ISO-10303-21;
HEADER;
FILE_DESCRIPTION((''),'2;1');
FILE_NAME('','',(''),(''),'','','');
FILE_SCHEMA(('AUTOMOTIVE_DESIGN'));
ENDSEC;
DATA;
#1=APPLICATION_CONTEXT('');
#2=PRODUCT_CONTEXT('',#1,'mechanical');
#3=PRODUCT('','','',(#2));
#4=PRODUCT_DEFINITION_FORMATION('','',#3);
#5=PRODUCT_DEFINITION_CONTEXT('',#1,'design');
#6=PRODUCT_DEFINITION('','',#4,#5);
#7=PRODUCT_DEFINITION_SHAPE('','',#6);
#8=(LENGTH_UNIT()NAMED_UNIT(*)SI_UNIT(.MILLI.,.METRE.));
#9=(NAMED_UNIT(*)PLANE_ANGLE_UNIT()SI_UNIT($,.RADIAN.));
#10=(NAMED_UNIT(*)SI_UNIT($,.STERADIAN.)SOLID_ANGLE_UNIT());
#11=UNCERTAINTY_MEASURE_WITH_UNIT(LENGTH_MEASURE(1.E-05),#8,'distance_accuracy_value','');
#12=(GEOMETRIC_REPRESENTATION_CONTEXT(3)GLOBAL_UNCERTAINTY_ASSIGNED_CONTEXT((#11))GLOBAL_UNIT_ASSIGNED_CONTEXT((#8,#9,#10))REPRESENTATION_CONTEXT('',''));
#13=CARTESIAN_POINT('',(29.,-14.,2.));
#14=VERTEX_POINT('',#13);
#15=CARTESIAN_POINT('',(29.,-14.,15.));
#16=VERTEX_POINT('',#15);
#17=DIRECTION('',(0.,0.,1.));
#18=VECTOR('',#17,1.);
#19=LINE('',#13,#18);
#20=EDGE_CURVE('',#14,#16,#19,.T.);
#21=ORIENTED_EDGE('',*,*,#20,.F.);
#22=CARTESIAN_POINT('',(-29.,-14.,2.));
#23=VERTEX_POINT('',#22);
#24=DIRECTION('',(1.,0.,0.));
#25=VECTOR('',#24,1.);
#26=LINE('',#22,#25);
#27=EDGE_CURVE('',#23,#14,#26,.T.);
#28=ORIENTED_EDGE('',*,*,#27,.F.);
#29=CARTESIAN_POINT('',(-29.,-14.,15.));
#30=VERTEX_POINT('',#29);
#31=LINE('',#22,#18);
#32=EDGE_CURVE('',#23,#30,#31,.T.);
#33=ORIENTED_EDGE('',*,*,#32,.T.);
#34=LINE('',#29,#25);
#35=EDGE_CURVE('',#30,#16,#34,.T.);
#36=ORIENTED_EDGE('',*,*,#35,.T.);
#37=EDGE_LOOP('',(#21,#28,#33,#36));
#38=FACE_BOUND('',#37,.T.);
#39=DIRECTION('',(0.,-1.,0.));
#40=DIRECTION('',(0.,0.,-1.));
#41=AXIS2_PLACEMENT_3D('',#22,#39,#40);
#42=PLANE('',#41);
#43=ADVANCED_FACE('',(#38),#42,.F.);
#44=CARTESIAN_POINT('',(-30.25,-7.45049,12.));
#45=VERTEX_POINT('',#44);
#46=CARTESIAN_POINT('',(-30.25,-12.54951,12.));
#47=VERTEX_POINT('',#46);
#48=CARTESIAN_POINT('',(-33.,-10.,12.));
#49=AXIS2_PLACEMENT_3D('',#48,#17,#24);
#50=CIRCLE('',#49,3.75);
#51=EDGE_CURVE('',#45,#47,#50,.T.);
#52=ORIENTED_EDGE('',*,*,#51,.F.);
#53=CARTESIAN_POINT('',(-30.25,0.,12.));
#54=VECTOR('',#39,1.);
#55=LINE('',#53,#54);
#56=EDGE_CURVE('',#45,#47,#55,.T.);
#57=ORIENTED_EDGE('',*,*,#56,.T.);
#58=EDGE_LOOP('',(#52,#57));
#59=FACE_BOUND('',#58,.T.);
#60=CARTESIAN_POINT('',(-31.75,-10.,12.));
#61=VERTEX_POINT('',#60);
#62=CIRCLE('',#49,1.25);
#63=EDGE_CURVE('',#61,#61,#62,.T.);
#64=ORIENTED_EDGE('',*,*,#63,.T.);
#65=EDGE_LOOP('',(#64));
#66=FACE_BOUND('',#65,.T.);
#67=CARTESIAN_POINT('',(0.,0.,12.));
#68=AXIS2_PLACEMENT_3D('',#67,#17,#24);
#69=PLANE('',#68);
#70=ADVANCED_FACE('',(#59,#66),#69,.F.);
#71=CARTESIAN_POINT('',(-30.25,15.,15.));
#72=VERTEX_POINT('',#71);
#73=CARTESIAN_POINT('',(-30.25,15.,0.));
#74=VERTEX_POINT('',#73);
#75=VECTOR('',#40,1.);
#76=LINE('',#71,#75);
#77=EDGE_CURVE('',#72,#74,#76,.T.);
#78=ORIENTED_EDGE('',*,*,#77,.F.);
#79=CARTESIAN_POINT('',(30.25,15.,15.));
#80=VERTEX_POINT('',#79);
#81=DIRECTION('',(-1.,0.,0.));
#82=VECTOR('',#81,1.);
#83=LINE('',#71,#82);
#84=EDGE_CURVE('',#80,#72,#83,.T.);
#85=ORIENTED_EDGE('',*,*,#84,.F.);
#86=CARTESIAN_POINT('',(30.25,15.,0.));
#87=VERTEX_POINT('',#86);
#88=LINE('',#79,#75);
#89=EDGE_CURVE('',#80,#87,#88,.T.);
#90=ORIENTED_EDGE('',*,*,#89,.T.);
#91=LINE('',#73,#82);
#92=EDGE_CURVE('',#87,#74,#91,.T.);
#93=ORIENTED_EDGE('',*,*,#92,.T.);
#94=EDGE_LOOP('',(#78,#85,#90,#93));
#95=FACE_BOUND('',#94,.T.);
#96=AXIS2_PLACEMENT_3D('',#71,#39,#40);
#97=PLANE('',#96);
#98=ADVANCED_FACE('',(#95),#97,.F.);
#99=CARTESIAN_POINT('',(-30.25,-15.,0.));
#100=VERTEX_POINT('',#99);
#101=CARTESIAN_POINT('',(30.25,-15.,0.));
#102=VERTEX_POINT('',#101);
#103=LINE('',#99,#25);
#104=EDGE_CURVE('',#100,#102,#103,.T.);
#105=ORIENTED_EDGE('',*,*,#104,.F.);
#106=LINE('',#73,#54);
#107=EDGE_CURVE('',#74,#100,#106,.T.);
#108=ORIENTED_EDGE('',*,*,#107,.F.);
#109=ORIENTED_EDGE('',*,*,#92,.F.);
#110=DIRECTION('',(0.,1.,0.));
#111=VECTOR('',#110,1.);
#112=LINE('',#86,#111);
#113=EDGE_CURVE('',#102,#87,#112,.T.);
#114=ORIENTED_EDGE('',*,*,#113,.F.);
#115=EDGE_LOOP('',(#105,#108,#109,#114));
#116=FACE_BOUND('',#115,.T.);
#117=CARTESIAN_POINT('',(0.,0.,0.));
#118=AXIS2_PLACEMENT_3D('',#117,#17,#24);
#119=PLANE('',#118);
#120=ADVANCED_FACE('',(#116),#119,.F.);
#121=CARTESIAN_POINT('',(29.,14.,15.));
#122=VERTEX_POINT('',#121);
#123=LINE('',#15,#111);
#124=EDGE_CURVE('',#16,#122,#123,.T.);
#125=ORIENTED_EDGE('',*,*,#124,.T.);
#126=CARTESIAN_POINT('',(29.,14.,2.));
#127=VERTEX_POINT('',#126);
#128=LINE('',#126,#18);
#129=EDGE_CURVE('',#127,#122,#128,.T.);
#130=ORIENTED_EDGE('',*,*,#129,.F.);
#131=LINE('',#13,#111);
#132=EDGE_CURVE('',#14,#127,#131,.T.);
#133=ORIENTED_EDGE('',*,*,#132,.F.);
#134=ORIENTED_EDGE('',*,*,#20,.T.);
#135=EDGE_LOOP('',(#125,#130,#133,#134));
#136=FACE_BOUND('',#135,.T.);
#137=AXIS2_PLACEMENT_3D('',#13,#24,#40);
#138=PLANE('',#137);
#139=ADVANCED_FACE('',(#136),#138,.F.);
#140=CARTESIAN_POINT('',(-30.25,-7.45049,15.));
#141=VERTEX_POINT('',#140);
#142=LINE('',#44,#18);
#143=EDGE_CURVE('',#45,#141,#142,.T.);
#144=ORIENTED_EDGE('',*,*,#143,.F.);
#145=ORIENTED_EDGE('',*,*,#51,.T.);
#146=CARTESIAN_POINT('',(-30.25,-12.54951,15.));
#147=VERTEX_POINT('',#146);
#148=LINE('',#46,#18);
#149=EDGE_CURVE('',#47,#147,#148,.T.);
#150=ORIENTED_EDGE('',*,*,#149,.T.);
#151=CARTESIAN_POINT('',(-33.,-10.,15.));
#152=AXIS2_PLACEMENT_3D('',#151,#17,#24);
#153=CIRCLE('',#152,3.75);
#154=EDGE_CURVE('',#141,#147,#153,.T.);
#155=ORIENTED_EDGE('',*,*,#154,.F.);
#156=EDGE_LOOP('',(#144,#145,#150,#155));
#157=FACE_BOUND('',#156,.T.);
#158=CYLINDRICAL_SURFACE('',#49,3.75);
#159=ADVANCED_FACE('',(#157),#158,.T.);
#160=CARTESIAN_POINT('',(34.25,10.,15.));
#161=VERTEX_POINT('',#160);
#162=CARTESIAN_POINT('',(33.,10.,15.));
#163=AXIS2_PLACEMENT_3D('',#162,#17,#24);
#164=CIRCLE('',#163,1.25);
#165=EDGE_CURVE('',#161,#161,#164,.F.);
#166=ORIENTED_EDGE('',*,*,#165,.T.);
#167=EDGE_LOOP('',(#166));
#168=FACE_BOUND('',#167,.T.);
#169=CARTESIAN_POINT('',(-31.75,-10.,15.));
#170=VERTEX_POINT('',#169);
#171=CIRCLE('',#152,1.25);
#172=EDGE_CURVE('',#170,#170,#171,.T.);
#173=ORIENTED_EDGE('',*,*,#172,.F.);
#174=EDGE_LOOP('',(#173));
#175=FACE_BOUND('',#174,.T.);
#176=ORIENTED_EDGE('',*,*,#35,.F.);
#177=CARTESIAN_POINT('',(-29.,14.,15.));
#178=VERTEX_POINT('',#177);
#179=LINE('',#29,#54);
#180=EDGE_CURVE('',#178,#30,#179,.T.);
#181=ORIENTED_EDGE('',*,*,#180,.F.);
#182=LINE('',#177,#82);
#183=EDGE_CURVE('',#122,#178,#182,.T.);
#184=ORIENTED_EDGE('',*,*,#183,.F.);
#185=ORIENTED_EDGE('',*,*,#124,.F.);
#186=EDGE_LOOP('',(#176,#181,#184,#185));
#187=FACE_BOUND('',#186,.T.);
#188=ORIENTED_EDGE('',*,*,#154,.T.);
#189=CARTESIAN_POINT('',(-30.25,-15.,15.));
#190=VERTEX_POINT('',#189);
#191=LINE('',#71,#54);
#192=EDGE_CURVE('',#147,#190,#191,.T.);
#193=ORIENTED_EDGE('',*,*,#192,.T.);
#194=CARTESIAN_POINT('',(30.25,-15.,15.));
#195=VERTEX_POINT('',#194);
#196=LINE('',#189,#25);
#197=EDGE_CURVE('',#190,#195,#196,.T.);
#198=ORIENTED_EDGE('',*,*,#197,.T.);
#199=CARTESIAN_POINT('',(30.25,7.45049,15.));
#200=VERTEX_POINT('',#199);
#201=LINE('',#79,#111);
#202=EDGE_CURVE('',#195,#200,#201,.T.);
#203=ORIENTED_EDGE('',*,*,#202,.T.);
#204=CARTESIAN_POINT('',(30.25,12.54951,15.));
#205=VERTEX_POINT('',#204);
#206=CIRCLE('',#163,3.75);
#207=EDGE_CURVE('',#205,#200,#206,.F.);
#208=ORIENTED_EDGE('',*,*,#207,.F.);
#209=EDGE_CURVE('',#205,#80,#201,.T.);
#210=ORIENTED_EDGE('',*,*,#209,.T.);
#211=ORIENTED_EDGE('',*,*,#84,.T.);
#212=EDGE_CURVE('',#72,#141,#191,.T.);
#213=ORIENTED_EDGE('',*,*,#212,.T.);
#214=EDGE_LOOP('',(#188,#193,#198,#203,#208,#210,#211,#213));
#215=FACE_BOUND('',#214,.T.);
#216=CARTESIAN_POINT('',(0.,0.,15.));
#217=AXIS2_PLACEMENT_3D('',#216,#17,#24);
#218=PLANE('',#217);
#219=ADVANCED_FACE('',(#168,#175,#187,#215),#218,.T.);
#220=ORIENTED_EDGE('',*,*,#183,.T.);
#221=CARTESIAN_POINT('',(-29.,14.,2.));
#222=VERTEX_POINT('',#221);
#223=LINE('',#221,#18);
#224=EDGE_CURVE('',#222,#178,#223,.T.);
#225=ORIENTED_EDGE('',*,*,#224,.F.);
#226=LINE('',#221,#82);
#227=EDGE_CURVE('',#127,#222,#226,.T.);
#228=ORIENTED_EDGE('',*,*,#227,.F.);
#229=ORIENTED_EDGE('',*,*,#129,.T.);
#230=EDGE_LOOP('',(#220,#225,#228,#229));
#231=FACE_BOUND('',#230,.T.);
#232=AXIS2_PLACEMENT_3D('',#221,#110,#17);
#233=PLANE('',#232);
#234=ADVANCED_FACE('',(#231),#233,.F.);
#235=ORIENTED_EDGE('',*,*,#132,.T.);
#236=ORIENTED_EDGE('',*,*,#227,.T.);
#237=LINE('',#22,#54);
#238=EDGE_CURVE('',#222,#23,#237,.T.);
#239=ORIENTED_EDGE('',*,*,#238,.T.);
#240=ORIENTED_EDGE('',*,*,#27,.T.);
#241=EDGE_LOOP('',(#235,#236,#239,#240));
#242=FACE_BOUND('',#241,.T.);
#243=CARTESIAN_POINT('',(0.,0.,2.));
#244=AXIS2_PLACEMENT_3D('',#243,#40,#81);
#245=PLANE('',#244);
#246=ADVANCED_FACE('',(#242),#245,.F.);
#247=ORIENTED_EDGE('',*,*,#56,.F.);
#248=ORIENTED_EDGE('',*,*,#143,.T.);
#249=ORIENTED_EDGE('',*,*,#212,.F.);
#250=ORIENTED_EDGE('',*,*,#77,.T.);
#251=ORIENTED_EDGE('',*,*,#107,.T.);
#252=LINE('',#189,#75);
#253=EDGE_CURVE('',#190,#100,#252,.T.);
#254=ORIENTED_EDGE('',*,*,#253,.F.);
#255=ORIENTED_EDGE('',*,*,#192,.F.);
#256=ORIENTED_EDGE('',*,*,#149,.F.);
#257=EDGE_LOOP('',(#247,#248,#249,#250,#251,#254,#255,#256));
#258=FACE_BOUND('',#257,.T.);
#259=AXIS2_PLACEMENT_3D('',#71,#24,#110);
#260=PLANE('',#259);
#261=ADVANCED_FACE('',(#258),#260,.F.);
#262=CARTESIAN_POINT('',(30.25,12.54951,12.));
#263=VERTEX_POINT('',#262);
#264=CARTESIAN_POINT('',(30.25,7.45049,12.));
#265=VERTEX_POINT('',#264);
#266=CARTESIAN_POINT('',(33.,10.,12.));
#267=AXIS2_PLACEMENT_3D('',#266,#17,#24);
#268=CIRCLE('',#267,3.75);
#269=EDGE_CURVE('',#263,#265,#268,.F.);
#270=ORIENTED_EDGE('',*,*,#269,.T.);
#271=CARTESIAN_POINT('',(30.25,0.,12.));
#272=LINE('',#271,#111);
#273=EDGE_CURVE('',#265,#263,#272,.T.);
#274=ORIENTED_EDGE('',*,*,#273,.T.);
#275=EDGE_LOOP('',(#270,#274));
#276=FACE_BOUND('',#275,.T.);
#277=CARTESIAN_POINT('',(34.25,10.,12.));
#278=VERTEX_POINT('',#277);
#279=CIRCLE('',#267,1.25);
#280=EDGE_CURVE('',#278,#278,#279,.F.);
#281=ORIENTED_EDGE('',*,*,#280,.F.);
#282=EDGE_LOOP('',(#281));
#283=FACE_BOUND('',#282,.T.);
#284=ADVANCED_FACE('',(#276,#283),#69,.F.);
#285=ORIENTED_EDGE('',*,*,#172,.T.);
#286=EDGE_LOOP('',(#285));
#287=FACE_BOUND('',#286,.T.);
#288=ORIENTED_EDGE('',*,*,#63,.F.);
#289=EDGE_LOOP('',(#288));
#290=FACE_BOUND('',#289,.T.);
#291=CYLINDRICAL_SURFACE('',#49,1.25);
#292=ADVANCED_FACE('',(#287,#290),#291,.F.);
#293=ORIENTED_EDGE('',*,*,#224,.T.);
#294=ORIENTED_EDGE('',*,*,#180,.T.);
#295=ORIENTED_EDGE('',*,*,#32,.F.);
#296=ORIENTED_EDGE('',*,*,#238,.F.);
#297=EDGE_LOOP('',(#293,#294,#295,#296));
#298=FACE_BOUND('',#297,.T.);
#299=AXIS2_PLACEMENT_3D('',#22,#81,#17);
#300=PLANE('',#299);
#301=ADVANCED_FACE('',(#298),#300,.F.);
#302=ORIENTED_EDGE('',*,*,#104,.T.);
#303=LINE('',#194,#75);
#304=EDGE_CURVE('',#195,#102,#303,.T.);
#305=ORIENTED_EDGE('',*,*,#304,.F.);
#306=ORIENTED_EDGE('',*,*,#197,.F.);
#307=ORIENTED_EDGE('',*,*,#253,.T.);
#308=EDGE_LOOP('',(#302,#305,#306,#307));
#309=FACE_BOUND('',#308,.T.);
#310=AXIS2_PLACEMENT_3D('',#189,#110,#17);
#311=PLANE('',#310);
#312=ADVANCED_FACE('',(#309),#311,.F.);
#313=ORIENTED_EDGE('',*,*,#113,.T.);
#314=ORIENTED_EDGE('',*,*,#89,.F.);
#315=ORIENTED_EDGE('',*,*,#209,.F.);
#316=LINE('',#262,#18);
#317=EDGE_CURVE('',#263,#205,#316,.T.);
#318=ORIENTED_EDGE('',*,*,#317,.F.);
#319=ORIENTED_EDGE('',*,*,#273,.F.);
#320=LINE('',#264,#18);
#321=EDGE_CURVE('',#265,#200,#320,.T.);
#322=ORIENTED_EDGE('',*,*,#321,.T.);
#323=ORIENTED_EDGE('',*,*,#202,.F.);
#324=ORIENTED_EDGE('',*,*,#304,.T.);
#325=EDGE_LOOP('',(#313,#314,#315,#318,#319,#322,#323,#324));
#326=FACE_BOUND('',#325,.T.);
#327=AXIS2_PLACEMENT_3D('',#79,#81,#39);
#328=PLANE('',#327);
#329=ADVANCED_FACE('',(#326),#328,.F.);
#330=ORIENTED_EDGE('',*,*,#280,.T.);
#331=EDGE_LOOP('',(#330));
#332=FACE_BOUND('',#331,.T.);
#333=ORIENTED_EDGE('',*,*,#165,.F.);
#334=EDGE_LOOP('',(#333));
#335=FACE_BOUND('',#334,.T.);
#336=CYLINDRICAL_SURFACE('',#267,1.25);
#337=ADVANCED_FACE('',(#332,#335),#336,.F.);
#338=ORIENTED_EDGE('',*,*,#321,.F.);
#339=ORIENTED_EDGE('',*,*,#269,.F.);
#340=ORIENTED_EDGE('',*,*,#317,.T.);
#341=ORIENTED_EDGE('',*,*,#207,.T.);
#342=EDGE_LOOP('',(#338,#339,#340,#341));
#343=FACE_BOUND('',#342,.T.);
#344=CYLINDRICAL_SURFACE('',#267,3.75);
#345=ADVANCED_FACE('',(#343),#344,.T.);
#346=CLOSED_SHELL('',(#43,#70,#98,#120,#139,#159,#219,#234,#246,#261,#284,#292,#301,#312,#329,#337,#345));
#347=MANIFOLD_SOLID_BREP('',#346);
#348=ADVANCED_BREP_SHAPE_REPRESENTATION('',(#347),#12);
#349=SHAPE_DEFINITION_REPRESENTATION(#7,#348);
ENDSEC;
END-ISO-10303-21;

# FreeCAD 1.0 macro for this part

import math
import FreeCAD as App
import Part
import Sketcher

doc = App.newDocument("Part")
params = doc.addObject("Spreadsheet::Sheet", "Params")
for row, (alias, value) in enumerate([
    ("sketch1_height", "30 mm"),
    ("sketch1_width", "60.5 mm"),
    ("pad1_length", "15 mm"),
    ("sketch2_diameter", "2.5 mm"),
    ("sketch2_width", "58 mm"),
    ("sketch2_height", "28 mm"),
    ("sketch2_radius", "3.75 mm"),
    ("pocket1_length", "13 mm"),
    ("sketch3_diameter", "2.5 mm"),
    ("sketch3_radius", "3.75 mm"),
    ("pad2_length", "3 mm"),
], start=1):
    params.set(f"A{row}", alias)
    params.set(f"B{row}", "=" + value)
    params.setAlias(f"B{row}", alias)

body = doc.addObject("PartDesign::Body", "Body")

# Sketch on XY plane
sketch1 = body.newObject("Sketcher::SketchObject", "Sketch")
sketch1.AttachmentSupport = (doc.getObject("XY_Plane"), [""])
sketch1.MapMode = "FlatFace"
sketch1.addGeometry([
    Part.LineSegment(App.Vector(-30, 15, 0), App.Vector(-30, -15, 0)),
    Part.LineSegment(App.Vector(-30, -15, 0), App.Vector(30, -15, 0)),
    Part.LineSegment(App.Vector(30, -15, 0), App.Vector(30, 15, 0)),
    Part.LineSegment(App.Vector(30, 15, 0), App.Vector(-30, 15, 0)),
], False)
sketch1.addConstraint([
    Sketcher.Constraint("Coincident", 0, 2, 1, 1),
    Sketcher.Constraint("Coincident", 1, 2, 2, 1),
    Sketcher.Constraint("Coincident", 2, 2, 3, 1),
    Sketcher.Constraint("Coincident", 3, 2, 0, 1),
    Sketcher.Constraint("Vertical", 0),
    Sketcher.Constraint("Horizontal", 1),
    Sketcher.Constraint("Vertical", 2),
    Sketcher.Constraint("Horizontal", 3),
    Sketcher.Constraint("Symmetric", 0, 2, 2, 2, -1, 1),
    Sketcher.Constraint("DistanceY", 0, 2, 0, 1, 30.0),
    Sketcher.Constraint("DistanceX", 1, 1, 1, 2, 60.5),
])
sketch1.setExpression("Constraints[9]", "Params.sketch1_height")
sketch1.setExpression("Constraints[10]", "Params.sketch1_width")
pad1 = body.newObject("PartDesign::Pad", "Pad")
pad1.Profile = sketch1
pad1.setExpression("Length", "Params.pad1_length")

# Sketch on XY plane
sketch2 = body.newObject("Sketcher::SketchObject", "Sketch001")
sketch2.AttachmentSupport = (doc.getObject("XY_Plane"), [""])
sketch2.MapMode = "FlatFace"
sketch2.AttachmentOffset = App.Placement(App.Vector(0, 0, 15), App.Rotation())
sketch2.addGeometry([
    Part.LineSegment(App.Vector(-29, 14, 0), App.Vector(-29, -14, 0)),  # 0
    Part.LineSegment(App.Vector(-29, -14, 0), App.Vector(29, -14, 0)),  # 1
    Part.LineSegment(App.Vector(29, -14, 0), App.Vector(29, 14, 0)),  # 2
    Part.LineSegment(App.Vector(29, 14, 0), App.Vector(-29, 14, 0)),  # 3
    Part.LineSegment(App.Vector(-30.2, -12.5, 0), App.Vector(-30.2, -7.5, 0)),  # 4
    Part.ArcOfCircle(Part.Circle(App.Vector(-33, -10, 0), App.Vector(0, 0, 1), 3.8), math.radians(43), math.radians(317)),  # 5
    Part.Circle(App.Vector(-33, -10, 0), App.Vector(0, 0, 1), 1.2),  # 6
    Part.LineSegment(App.Vector(30.2, 12.5, 0), App.Vector(30.2, 7.5, 0)),  # 7
    Part.ArcOfCircle(Part.Circle(App.Vector(33, 10, 0), App.Vector(0, 0, 1), 3.8), math.radians(-137), math.radians(137)),  # 8
    Part.Circle(App.Vector(33, 10, 0), App.Vector(0, 0, 1), 1.2),  # 9
], False)
sketch2.addConstraint([
    Sketcher.Constraint("Coincident", 0, 2, 1, 1),
    Sketcher.Constraint("Coincident", 1, 2, 2, 1),
    Sketcher.Constraint("Coincident", 2, 2, 3, 1),
    Sketcher.Constraint("Coincident", 3, 2, 0, 1),
    Sketcher.Constraint("Coincident", 4, 1, 5, 2),
    Sketcher.Constraint("Coincident", 5, 1, 4, 2),
    Sketcher.Constraint("Coincident", 7, 1, 8, 2),
    Sketcher.Constraint("Coincident", 8, 1, 7, 2),
    Sketcher.Constraint("Vertical", 0),
    Sketcher.Constraint("Horizontal", 1),
    Sketcher.Constraint("Vertical", 2),
    Sketcher.Constraint("Horizontal", 3),
    Sketcher.Constraint("Vertical", 4),
    Sketcher.Constraint("Vertical", 7),
    Sketcher.Constraint("Coincident", 6, 3, 5, 3),
    Sketcher.Constraint("Coincident", 9, 3, 8, 3),
    Sketcher.Constraint("Equal", 5, 8),
    Sketcher.Constraint("Equal", 6, 9),
    Sketcher.Constraint("Symmetric", 5, 3, 8, 3, -1, 1),
    Sketcher.Constraint("Symmetric", 0, 2, 2, 2, -1, 1),
    Sketcher.Constraint("Equal", 4, 7),
    Sketcher.Constraint("Diameter", 6, 2.5),
    Sketcher.Constraint("DistanceX", 1, 1, 1, 2, 58.0),
    Sketcher.Constraint("DistanceY", 0, 2, 0, 1, 28.0),
    Sketcher.Constraint("Radius", 5, 3.75),
    Sketcher.Constraint("DistanceX", 5, 3, -1, 1, 33.0),
    Sketcher.Constraint("DistanceY", 5, 3, -1, 1, 10.0),
    Sketcher.Constraint("DistanceX", 4, 1, -1, 1, 30.25),
])
sketch2.setExpression("Constraints[21]", "Params.sketch2_diameter")
sketch2.setExpression("Constraints[22]", "Params.sketch2_width")
sketch2.setExpression("Constraints[23]", "Params.sketch2_height")
sketch2.setExpression("Constraints[24]", "Params.sketch2_radius")
pocket1 = body.newObject("PartDesign::Pocket", "Pocket")
pocket1.Profile = sketch2
pocket1.setExpression("Length", "Params.pocket1_length")

# Sketch on XY plane
sketch3 = body.newObject("Sketcher::SketchObject", "Sketch002")
sketch3.AttachmentSupport = (doc.getObject("XY_Plane"), [""])
sketch3.MapMode = "FlatFace"
sketch3.AttachmentOffset = App.Placement(App.Vector(0, 0, 15), App.Rotation())
sketch3.addGeometry([
    Part.LineSegment(App.Vector(-30.2, -12.5, 0), App.Vector(-30.2, -7.5, 0)),  # 0
    Part.ArcOfCircle(Part.Circle(App.Vector(-33, -10, 0), App.Vector(0, 0, 1), 3.8), math.radians(43), math.radians(317)),  # 1
    Part.Circle(App.Vector(-33, -10, 0), App.Vector(0, 0, 1), 1.2),  # 2
    Part.ArcOfCircle(Part.Circle(App.Vector(33, 10, 0), App.Vector(0, 0, 1), 3.8), math.radians(-137), math.radians(137)),  # 3
    Part.LineSegment(App.Vector(30.2, 12.5, 0), App.Vector(30.2, 7.5, 0)),  # 4
    Part.Circle(App.Vector(33, 10, 0), App.Vector(0, 0, 1), 1.2),  # 5
], False)
sketch3.addConstraint([
    Sketcher.Constraint("Coincident", 0, 1, 1, 2),
    Sketcher.Constraint("Coincident", 1, 1, 0, 2),
    Sketcher.Constraint("Coincident", 3, 1, 4, 2),
    Sketcher.Constraint("Coincident", 4, 1, 3, 2),
    Sketcher.Constraint("Vertical", 0),
    Sketcher.Constraint("Vertical", 4),
    Sketcher.Constraint("Coincident", 2, 3, 1, 3),
    Sketcher.Constraint("Coincident", 5, 3, 3, 3),
    Sketcher.Constraint("Equal", 1, 3),
    Sketcher.Constraint("Equal", 2, 5),
    Sketcher.Constraint("Symmetric", 1, 3, 3, 3, -1, 1),
    Sketcher.Constraint("Equal", 0, 4),
    Sketcher.Constraint("Diameter", 2, 2.5),
    Sketcher.Constraint("Radius", 1, 3.75),
    Sketcher.Constraint("DistanceX", 1, 3, -1, 1, 33.0),
    Sketcher.Constraint("DistanceY", 1, 3, -1, 1, 10.0),
    Sketcher.Constraint("DistanceX", 1, 1, 3, 1, 60.5),
])
sketch3.setExpression("Constraints[12]", "Params.sketch3_diameter")
sketch3.setExpression("Constraints[13]", "Params.sketch3_radius")
pad2 = body.newObject("PartDesign::Pad", "Pad001")
pad2.Profile = sketch3
pad2.setExpression("Length", "Params.pad2_length")
pad2.Reversed = True

doc.recompute()
